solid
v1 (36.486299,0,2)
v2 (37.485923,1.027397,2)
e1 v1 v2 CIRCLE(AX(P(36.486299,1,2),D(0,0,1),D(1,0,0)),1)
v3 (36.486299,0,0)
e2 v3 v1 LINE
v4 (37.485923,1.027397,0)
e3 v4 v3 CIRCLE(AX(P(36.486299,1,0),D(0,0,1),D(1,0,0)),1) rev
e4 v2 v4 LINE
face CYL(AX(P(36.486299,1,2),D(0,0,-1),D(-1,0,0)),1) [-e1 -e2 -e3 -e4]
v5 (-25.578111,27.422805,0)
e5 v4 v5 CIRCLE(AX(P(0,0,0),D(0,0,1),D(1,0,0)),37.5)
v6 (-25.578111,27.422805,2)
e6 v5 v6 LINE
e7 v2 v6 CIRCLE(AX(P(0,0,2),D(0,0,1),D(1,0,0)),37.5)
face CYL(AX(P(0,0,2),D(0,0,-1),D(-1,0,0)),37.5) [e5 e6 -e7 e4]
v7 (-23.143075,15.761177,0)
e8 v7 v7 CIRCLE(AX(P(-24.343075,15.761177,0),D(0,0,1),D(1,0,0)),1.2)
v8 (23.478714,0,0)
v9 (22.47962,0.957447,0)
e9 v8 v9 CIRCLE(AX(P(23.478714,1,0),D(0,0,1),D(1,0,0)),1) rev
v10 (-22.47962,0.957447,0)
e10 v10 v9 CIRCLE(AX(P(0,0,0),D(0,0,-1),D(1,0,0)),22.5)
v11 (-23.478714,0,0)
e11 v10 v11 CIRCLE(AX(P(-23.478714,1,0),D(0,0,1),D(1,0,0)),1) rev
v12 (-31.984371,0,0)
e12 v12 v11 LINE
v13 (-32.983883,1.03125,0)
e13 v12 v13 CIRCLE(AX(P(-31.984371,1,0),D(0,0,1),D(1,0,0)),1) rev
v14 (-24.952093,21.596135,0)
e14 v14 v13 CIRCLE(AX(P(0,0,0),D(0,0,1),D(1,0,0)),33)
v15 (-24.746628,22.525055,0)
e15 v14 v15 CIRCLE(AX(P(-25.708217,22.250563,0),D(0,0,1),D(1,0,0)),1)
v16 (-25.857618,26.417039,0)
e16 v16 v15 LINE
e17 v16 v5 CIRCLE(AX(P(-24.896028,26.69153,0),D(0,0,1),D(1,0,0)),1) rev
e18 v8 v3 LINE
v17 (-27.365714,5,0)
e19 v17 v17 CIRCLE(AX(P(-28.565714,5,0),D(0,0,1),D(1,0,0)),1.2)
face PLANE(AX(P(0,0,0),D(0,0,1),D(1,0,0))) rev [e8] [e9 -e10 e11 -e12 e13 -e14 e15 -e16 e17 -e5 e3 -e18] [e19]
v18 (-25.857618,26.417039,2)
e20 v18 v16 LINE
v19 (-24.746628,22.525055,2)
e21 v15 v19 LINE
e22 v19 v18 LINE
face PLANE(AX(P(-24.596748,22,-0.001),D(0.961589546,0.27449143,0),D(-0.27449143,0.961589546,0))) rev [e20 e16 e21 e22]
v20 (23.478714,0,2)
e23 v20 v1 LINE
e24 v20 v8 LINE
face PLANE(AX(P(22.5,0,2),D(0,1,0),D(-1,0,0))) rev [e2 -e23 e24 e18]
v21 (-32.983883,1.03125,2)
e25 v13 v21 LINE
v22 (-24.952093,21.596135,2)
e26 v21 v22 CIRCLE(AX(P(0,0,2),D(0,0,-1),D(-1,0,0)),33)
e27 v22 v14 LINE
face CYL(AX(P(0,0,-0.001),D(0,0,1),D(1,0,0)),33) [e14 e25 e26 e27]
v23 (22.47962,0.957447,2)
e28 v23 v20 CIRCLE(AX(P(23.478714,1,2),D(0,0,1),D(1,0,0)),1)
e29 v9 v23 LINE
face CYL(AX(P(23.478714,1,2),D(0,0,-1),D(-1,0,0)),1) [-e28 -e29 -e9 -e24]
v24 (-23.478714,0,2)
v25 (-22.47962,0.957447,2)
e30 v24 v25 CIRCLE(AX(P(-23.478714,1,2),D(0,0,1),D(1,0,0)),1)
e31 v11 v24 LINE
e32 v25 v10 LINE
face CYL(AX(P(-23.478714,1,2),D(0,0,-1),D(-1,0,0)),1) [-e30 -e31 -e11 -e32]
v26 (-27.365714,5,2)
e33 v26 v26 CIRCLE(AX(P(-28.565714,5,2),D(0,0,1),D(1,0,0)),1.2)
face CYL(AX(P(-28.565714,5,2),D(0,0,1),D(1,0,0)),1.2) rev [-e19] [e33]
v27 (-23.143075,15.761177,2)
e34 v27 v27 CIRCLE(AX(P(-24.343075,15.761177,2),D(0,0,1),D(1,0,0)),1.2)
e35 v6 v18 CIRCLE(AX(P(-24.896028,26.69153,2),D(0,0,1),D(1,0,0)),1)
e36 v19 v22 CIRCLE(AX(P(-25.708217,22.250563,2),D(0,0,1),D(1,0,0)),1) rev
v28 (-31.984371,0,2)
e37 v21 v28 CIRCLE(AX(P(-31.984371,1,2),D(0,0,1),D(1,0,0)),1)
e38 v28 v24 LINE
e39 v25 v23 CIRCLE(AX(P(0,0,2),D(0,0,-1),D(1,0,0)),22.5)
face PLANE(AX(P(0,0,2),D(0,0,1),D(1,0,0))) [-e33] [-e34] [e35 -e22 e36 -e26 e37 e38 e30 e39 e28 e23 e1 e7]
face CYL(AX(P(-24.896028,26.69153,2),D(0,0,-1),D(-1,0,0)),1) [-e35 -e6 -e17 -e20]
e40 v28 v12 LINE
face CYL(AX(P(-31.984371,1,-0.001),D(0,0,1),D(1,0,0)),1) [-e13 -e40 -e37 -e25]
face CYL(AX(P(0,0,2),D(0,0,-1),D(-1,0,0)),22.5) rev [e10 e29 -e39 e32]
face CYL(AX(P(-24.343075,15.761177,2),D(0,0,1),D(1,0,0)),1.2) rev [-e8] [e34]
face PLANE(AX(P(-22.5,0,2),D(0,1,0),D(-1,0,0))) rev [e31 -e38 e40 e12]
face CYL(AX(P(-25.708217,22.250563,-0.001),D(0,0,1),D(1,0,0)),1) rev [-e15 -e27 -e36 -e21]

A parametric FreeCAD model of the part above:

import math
import FreeCAD as App
import Part
import Sketcher
Q = App.Units.Quantity


def edges_at(feature, points):
    """Names of the edges that pass closest to the given points."""
    edges = feature.Shape.Edges
    near = lambda p: min(range(len(edges)), key=lambda i: edges[i].distToShape(Part.Vertex(*p))[0])
    return sorted({f"Edge{near(p) + 1}" for p in points})

doc = App.newDocument("Part")
body = doc.addObject("PartDesign::Body", "Body")

# Sketch on XY plane
sketch1 = doc.addObject("Sketcher::SketchObject", "Sketch")
body.addObject(sketch1)
sketch1.AttachmentSupport = (doc.XY_Plane, [""])
sketch1.MapMode = "FlatFace"
sketch1.addGeometry([
    Part.LineSegment(App.Vector(-38, 0, 0), App.Vector(-22, 0, 0)),
    Part.ArcOfCircle(Part.Circle(App.Vector(0, 0, 0), App.Vector(0, 0, 1), 22), math.radians(0), math.radians(180)),
    Part.LineSegment(App.Vector(22, 0, 0), App.Vector(38, 0, 0)),
    Part.ArcOfCircle(Part.Circle(App.Vector(0, 0, 0), App.Vector(0, 0, 1), 38), math.radians(0), math.radians(180)),
], False)
sketch1.addConstraint([
    Sketcher.Constraint("Coincident", 0, 2, 1, 2),
    Sketcher.Constraint("Coincident", 1, 1, 2, 1),
    Sketcher.Constraint("Coincident", 2, 2, 3, 1),
    Sketcher.Constraint("Coincident", 3, 2, 0, 1),
    Sketcher.Constraint("Horizontal", 0),
    Sketcher.Constraint("Horizontal", 2),
    Sketcher.Constraint("Coincident", 1, 3, -1, 1),
    Sketcher.Constraint("Coincident", 3, 3, -1, 1),
    Sketcher.Constraint("PointOnObject", 0, 2, -1),
    Sketcher.Constraint("PointOnObject", 1, 1, -1),
    Sketcher.Constraint("Radius", 1, Q("22.5 mm")),
    Sketcher.Constraint("Radius", 3, Q("37.5 mm")),
])
pad1 = doc.addObject("PartDesign::Pad", "Pad")
body.addObject(pad1)
pad1.Profile = sketch1
pad1.Length = 2

# Sketch on XY plane
sketch2 = doc.addObject("Sketcher::SketchObject", "Sketch001")
body.addObject(sketch2)
sketch2.AttachmentSupport = (doc.XY_Plane, [""])
sketch2.MapMode = "FlatFace"
sketch2.AttachmentOffset = App.Placement(App.Vector(0, 0, 2), App.Rotation())
sketch2.addGeometry([
    Part.Circle(App.Vector(-28.6, 5, 0), App.Vector(0, 0, 1), 1.2),
    Part.Circle(App.Vector(-24.3, 15.8, 0), App.Vector(0, 0, 1), 1.2),
], False)
sketch2.addConstraint([
    Sketcher.Constraint("Equal", 0, 1),
    Sketcher.Constraint("Diameter", 0, Q("2.4 mm")),
    Sketcher.Constraint("DistanceY", -1, 1, 0, 3, Q("5 mm")),
    Sketcher.Constraint("DistanceX", 0, 3, 1, 3, Q("4.222639 mm")),
    Sketcher.Constraint("DistanceX", 0, 3, -1, 1, Q("28.565714 mm")),
    Sketcher.Constraint("DistanceY", -1, 1, 1, 3, Q("15.761177 mm")),
])
doc.recompute()
hole = doc.addObject("PartDesign::Hole", "Hole")
body.addObject(hole)
hole.Profile = sketch2
hole.ThreadType = "None"
hole.Diameter = 2.4
hole.DepthType = "Dimension"
hole.Depth = 10
hole.DrillPoint = "Angled"
hole.DrillPointAngle = 118

# Sketch on XY plane
sketch3 = doc.addObject("Sketcher::SketchObject", "Sketch002")
body.addObject(sketch3)
sketch3.AttachmentSupport = (doc.XY_Plane, [""])
sketch3.MapMode = "FlatFace"
sketch3.AttachmentOffset = App.Placement(App.Vector(0, 0, 2), App.Rotation())
sketch3.addGeometry([
    Part.LineSegment(App.Vector(-24.6, 22, 0), App.Vector(-26, 27, 0)),
    Part.ArcOfCircle(Part.Circle(App.Vector(0, 0, 0), App.Vector(0, 0, 1), 37.5), math.radians(134), math.radians(180)),
    Part.LineSegment(App.Vector(-37.5, 0, 0), App.Vector(-33, 0, 0)),
    Part.ArcOfCircle(Part.Circle(App.Vector(0, 0, 0), App.Vector(0, 0, 1), 33), math.radians(138), math.radians(180)),
], False)
sketch3.addConstraint([
    Sketcher.Constraint("Coincident", 0, 2, 1, 1),
    Sketcher.Constraint("Coincident", 1, 2, 2, 1),
    Sketcher.Constraint("Coincident", 2, 2, 3, 2),
    Sketcher.Constraint("Coincident", 3, 1, 0, 1),
    Sketcher.Constraint("Horizontal", 2),
    Sketcher.Constraint("Coincident", 1, 3, -1, 1),
    Sketcher.Constraint("Coincident", 3, 3, -1, 1),
    Sketcher.Constraint("PointOnObject", 1, 2, -1),
    Sketcher.Constraint("Radius", 3, Q("33 mm")),
    Sketcher.Constraint("Radius", 1, Q("37.5 mm")),
    Sketcher.Constraint("DistanceY", -1, 1, 0, 2, Q("27 mm")),
    Sketcher.Constraint("DistanceY", -1, 1, 3, 1, Q("22 mm")),
])
pocket1 = doc.addObject("PartDesign::Pocket", "Pocket")
body.addObject(pocket1)
pocket1.Profile = sketch3
pocket1.Type = "UpToFirst"
doc.recompute()

fillet = doc.addObject("PartDesign::Fillet", "Fillet")
body.addObject(fillet)
fillet.Base = (pocket1, edges_at(pocket1, [
    (-24.597, 22, 1),
    (-33, 0, 1),
    (-26.024, 27, 1),
    (-22.5, 0, 1),
    (37.5, 0, 1),
    (22.5, 0, 1),
]))
fillet.Radius = 1

doc.recompute()
